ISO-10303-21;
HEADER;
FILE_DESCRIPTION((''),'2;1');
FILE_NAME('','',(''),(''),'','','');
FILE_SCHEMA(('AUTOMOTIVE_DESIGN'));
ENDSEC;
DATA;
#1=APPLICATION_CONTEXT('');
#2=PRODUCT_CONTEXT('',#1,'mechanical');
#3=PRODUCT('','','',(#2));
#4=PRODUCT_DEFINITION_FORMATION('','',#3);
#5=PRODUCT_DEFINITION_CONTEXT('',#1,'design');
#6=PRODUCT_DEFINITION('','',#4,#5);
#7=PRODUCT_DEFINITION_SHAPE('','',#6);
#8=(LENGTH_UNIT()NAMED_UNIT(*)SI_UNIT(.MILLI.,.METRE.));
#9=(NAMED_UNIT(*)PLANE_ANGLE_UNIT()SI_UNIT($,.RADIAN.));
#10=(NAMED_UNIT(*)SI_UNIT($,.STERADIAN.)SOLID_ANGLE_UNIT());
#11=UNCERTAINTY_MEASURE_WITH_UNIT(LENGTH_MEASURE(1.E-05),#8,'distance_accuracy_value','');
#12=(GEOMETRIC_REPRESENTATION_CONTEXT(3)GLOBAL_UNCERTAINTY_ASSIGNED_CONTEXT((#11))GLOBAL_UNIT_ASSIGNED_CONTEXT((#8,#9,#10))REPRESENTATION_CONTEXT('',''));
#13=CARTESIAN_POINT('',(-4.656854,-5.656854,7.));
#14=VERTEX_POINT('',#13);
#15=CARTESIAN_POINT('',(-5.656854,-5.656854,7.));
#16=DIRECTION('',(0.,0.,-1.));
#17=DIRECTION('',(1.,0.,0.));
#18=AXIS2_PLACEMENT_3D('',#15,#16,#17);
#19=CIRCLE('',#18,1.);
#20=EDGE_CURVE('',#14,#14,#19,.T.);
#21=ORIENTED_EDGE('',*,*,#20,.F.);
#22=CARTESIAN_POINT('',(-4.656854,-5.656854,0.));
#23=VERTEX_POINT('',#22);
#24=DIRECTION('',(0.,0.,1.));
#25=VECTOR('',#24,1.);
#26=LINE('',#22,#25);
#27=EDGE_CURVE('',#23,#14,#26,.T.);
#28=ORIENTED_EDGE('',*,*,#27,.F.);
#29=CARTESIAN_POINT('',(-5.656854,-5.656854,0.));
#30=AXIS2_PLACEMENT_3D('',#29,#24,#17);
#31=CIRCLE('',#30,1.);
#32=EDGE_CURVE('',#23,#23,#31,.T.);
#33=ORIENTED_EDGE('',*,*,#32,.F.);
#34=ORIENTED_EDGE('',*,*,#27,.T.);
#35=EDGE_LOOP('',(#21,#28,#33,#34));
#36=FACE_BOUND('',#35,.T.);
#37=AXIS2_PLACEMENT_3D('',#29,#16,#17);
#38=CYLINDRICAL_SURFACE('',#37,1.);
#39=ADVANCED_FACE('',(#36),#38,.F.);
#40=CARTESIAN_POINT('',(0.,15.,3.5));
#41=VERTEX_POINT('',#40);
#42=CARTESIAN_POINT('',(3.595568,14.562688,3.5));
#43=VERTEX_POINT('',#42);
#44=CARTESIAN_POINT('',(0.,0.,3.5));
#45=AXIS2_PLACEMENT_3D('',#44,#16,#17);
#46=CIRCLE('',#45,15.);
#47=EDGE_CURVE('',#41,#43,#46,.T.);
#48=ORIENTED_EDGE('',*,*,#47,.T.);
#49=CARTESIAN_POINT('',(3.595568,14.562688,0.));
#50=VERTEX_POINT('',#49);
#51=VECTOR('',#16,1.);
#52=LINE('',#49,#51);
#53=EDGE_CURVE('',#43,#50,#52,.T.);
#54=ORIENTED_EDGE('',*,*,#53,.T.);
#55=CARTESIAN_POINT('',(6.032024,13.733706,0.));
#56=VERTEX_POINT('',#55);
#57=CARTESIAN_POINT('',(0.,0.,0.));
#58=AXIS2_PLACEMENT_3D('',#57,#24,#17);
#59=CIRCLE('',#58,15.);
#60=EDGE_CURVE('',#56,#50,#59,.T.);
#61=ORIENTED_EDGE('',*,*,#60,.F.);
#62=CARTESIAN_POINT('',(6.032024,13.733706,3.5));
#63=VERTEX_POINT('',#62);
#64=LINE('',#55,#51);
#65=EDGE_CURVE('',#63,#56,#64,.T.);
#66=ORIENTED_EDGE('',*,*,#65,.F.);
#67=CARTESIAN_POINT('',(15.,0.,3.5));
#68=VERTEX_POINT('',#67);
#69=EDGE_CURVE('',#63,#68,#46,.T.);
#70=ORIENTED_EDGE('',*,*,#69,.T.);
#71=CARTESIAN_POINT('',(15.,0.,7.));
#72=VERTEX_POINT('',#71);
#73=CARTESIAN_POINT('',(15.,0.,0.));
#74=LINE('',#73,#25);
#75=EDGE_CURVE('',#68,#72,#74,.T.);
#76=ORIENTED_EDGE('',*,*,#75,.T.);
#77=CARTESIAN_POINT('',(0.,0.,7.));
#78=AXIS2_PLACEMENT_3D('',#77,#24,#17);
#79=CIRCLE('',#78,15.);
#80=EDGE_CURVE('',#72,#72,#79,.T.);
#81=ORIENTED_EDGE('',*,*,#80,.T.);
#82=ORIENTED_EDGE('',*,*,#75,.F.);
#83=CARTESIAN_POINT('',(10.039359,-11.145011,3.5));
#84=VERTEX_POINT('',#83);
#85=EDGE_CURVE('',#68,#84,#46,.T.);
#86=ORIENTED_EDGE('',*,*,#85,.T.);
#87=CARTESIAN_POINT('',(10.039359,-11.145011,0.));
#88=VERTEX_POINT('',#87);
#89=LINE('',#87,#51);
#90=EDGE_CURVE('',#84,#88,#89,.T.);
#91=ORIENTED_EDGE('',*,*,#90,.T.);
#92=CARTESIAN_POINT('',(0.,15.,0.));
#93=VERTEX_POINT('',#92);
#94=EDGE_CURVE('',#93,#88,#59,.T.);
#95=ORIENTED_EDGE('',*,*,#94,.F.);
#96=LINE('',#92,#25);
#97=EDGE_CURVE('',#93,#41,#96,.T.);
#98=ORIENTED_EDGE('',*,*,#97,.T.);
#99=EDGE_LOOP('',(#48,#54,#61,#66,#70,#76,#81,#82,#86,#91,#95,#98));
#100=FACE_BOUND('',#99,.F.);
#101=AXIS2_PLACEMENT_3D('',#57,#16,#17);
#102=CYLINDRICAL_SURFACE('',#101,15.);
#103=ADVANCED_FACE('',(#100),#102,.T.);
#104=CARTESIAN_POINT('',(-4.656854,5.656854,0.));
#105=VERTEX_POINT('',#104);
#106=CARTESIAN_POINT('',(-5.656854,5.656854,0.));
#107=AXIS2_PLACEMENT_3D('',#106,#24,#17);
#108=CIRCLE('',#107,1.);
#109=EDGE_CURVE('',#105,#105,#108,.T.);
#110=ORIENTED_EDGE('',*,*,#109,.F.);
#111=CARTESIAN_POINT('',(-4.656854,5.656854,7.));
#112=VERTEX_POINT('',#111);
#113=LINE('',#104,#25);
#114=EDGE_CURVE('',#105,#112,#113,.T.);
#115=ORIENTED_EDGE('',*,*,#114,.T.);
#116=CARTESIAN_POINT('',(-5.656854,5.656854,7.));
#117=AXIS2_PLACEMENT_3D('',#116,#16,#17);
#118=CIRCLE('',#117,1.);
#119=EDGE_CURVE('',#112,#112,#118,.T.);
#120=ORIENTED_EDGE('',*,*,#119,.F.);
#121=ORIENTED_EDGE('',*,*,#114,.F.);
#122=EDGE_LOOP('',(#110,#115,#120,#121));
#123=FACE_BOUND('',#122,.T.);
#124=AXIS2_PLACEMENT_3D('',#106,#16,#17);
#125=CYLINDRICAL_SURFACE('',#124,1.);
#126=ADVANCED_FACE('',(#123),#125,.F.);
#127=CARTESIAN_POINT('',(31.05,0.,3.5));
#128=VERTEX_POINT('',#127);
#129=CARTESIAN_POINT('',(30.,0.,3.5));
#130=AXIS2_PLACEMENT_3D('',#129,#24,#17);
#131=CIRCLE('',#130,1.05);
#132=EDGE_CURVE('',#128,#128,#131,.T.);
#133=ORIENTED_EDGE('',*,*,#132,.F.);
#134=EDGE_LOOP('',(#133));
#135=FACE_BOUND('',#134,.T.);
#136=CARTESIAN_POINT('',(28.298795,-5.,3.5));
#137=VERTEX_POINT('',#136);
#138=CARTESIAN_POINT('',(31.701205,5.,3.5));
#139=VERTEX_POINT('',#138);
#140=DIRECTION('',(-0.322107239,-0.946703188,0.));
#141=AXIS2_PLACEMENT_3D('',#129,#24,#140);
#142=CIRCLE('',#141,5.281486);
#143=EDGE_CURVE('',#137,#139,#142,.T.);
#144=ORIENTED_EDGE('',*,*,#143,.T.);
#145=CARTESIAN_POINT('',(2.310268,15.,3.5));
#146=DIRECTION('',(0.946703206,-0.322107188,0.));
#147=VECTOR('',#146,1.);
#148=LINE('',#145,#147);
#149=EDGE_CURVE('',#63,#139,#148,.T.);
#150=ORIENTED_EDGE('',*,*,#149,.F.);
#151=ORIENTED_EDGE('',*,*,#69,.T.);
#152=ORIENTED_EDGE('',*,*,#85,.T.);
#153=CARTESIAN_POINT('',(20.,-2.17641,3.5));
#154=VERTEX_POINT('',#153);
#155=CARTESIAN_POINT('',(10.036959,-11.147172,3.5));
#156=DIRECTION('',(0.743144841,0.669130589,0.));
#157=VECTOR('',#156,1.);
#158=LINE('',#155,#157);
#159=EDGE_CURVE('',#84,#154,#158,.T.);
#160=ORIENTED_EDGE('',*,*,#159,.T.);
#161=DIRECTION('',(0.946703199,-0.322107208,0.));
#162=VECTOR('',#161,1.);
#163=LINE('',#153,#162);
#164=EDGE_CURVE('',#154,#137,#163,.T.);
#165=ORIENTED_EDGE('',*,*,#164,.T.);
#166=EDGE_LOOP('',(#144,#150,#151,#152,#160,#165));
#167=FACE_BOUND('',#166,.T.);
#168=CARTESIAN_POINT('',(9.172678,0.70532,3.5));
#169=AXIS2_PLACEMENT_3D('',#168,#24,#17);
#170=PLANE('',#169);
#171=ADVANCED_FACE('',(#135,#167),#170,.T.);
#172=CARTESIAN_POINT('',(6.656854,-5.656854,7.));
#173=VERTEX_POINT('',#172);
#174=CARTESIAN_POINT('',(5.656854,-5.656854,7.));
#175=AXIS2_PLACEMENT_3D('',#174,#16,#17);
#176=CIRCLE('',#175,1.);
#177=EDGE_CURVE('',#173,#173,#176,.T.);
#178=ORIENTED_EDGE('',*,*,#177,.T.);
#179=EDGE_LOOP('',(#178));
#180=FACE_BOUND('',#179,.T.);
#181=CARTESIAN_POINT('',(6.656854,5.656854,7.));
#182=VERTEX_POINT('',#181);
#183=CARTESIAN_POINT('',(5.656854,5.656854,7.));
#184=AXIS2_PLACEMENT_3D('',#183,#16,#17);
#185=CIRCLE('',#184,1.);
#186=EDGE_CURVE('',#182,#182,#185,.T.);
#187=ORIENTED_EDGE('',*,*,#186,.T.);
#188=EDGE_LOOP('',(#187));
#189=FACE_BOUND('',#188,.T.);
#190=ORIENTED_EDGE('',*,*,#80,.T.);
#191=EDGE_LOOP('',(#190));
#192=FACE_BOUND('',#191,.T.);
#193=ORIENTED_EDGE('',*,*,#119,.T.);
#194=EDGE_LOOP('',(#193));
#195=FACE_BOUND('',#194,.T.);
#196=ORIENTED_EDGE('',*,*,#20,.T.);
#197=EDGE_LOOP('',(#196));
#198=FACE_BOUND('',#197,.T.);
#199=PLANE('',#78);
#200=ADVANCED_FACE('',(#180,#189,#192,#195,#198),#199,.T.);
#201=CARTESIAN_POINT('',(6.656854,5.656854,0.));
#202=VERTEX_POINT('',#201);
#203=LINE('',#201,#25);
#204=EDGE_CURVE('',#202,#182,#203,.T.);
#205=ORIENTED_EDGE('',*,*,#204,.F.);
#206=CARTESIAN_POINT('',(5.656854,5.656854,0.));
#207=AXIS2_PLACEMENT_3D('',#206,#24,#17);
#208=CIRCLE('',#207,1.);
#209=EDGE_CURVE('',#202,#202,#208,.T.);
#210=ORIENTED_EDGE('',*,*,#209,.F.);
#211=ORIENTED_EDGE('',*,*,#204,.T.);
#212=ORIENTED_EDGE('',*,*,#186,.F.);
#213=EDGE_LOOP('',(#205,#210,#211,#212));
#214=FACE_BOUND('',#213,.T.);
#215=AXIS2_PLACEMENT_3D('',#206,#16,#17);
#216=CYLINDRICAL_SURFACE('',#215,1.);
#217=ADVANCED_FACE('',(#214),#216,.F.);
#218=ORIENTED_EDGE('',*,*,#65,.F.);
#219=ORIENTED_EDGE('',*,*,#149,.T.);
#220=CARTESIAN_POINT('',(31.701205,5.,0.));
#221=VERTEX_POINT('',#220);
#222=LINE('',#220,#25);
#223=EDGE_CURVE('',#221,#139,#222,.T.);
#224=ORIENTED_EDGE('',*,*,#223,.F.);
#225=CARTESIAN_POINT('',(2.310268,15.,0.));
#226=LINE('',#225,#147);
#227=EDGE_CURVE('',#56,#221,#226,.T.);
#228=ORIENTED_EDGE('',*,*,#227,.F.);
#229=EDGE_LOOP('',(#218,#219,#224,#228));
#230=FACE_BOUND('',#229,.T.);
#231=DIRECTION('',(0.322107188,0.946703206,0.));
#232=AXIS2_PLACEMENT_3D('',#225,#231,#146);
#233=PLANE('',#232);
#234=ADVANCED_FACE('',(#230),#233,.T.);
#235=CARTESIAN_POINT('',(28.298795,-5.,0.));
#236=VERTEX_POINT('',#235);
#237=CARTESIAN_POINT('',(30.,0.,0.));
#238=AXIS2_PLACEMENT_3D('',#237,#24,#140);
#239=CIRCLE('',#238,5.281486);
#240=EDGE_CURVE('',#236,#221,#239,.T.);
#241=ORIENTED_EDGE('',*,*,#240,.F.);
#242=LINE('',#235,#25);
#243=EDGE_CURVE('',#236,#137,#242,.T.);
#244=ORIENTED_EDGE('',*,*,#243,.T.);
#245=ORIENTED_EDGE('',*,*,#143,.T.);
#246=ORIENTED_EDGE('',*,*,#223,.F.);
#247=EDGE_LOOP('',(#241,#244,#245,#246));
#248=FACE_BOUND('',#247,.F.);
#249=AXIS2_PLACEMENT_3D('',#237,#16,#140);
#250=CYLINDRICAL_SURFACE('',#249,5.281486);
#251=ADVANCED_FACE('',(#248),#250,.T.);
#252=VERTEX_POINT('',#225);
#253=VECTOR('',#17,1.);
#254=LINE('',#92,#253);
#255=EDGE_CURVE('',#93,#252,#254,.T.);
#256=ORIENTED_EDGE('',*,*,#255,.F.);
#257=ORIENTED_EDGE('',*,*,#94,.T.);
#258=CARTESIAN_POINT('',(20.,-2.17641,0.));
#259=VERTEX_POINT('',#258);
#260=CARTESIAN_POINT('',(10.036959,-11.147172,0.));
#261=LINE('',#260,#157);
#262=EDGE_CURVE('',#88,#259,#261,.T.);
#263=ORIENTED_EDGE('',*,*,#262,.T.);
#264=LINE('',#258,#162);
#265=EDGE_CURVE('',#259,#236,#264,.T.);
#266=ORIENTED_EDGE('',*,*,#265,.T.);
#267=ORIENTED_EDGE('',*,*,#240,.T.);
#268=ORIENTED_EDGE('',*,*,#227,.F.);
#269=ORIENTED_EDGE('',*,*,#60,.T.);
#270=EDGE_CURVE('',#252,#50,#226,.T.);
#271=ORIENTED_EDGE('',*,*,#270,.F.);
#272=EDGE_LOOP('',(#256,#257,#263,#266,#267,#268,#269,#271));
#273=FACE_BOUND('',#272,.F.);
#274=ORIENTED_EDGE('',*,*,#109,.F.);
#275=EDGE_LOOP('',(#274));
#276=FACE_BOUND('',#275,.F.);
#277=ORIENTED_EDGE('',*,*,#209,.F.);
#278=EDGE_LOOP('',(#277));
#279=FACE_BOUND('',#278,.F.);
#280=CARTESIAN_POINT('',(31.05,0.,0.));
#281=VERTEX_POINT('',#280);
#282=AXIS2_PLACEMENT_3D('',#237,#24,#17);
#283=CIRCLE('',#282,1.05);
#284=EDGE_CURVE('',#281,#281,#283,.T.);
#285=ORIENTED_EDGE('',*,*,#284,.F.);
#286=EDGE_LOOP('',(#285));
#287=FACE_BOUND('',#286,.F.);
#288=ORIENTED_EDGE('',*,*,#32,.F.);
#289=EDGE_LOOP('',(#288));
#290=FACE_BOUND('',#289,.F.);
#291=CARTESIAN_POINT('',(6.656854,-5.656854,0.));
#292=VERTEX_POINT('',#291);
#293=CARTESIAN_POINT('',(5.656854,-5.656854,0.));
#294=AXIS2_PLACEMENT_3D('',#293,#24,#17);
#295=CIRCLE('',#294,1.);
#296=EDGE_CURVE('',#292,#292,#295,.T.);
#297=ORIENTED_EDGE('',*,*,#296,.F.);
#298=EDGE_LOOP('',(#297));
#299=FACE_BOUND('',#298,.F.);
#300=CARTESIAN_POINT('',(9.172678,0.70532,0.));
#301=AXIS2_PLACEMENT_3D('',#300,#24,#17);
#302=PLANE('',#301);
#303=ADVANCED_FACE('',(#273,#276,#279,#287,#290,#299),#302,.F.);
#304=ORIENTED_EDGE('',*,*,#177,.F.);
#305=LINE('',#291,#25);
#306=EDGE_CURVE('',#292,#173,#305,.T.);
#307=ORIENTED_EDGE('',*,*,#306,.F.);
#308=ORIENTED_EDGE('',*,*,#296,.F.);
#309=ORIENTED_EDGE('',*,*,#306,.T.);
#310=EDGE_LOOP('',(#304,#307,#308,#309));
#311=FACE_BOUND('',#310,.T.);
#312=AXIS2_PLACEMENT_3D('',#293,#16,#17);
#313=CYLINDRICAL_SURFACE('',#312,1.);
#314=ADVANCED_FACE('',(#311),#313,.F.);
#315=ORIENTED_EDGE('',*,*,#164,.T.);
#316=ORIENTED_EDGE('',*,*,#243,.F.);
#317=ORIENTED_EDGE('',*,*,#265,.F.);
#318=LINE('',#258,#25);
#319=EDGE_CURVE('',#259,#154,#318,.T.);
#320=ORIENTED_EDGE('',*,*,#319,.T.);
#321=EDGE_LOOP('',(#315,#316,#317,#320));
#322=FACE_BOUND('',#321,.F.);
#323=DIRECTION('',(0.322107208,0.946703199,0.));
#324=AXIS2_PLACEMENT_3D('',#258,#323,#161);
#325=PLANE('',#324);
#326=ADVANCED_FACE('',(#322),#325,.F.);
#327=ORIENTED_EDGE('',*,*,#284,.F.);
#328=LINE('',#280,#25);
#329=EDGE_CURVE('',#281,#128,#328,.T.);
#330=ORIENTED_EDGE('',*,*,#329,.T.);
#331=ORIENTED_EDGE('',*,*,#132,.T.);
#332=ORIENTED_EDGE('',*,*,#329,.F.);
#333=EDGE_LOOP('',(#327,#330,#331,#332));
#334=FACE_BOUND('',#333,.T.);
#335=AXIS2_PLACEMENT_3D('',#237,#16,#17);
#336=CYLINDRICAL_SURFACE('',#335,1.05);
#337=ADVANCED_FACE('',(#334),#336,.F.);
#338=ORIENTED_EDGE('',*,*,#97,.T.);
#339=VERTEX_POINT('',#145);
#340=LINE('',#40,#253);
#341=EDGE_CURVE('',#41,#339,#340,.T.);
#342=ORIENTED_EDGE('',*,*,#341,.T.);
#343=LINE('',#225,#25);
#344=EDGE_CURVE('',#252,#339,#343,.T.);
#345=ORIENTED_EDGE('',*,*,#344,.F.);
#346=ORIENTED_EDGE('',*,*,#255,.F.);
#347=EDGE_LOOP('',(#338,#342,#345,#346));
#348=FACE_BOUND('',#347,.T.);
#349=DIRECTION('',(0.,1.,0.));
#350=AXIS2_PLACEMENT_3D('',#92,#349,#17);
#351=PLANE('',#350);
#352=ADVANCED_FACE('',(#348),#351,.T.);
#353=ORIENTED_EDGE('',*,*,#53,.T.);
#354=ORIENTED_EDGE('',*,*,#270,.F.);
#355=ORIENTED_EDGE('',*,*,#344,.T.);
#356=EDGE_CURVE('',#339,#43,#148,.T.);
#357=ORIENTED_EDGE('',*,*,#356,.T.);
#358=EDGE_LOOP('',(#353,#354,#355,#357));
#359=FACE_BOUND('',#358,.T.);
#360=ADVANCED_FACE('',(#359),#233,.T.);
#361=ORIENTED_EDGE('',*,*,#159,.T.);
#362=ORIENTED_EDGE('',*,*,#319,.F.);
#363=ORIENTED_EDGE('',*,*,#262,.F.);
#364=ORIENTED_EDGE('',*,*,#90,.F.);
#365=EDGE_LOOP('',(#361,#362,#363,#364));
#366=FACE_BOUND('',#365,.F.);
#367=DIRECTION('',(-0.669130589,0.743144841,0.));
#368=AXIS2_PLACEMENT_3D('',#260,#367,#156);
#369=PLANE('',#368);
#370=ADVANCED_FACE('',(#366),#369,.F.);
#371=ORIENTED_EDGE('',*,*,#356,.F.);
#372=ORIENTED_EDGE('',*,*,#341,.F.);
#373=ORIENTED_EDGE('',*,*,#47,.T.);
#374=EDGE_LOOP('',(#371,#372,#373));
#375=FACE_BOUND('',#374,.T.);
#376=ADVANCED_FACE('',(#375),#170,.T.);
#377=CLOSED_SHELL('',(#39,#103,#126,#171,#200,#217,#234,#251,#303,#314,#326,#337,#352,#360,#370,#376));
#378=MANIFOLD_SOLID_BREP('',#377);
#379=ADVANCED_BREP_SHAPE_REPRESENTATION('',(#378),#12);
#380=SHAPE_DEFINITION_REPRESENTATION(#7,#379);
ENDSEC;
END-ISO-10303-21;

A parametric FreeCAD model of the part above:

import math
import FreeCAD as App
import Part
import Sketcher
from FreeCAD import Vector
Q = App.Units.Quantity

doc = App.newDocument("Part")
body = doc.addObject("PartDesign::Body", "Body")

# Sketch on XY plane
sketch1 = body.newObject("Sketcher::SketchObject", "Sketch")
sketch1.AttachmentSupport = (doc.getObject("XY_Plane"), [""])
sketch1.MapMode = "FlatFace"
sketch1.addGeometry([
    Part.ArcOfCircle(Part.Circle(Vector(0, 0, 0), Vector(0, 0, 1), 15), math.radians(90), math.radians(312)),  # 0
    Part.LineSegment(Vector(10, -11.1, 0), Vector(20, -2.2, 0)),  # 1
    Part.LineSegment(Vector(20, -2.2, 0), Vector(28.3, -5, 0)),  # 2
    Part.ArcOfCircle(Part.Circle(Vector(30, 0, 0), Vector(0, 0, 1), 5.3), math.radians(-109), math.radians(71)),  # 3
    Part.LineSegment(Vector(31.7, 5, 0), Vector(2.3, 15, 0)),  # 4
    Part.LineSegment(Vector(2.3, 15, 0), Vector(0, 15, 0)),  # 5
    Part.Circle(Vector(30, 0, 0), Vector(0, 0, 1), 1.1),  # 6
], False)
sketch1.addConstraint([
    Sketcher.Constraint("Tangent", 0, 2, 1, 1),
    Sketcher.Constraint("Coincident", 1, 2, 2, 1),
    Sketcher.Constraint("Tangent", 2, 2, 3, 1),
    Sketcher.Constraint("Tangent", 3, 2, 4, 1),
    Sketcher.Constraint("Coincident", 4, 2, 5, 1),
    Sketcher.Constraint("Tangent", 5, 2, 0, 1),
    Sketcher.Constraint("Horizontal", 5),
    Sketcher.Constraint("Coincident", 0, 3, -1, 1),
    Sketcher.Constraint("Coincident", 6, 3, 3, 3),
    Sketcher.Constraint("PointOnObject", 3, 3, -1),
    Sketcher.Constraint("Parallel", 2, 4),
    Sketcher.Constraint("Radius", 0, 15.0),
    Sketcher.Constraint("Diameter", 6, 2.1),
    Sketcher.Constraint("Angle", 1, Q("41.999999 deg")),
    Sketcher.Constraint("DistanceX", -1, 1, 3, 3, 30.0),
    Sketcher.Constraint("DistanceX", -1, 1, 1, 2, 20.0),
    Sketcher.Constraint("DistanceY", 2, 2, -1, 1, 5.0),
])
pad1 = body.newObject("PartDesign::Pad", "Pad")
pad1.Profile = sketch1
pad1.Length = 3.5

# Sketch on XY plane
sketch2 = body.newObject("Sketcher::SketchObject", "Sketch001")
sketch2.AttachmentSupport = (doc.getObject("XY_Plane"), [""])
sketch2.MapMode = "FlatFace"
sketch2.addGeometry(Part.Circle(Vector(0, 0, 0), Vector(0, 0, 1), 15), False)
sketch2.addConstraint([
    Sketcher.Constraint("Coincident", 0, 3, -1, 1),
    Sketcher.Constraint("Diameter", 0, 30.0),
])
pad2 = body.newObject("PartDesign::Pad", "Pad001")
pad2.Profile = sketch2
pad2.Length = 7

# Sketch on XY plane
sketch3 = body.newObject("Sketcher::SketchObject", "Sketch002")
sketch3.AttachmentSupport = (doc.getObject("XY_Plane"), [""])
sketch3.MapMode = "FlatFace"
sketch3.addGeometry([
    Part.Circle(Vector(-5.7, 5.7, 0), Vector(0, 0, 1), 1),
    Part.Circle(Vector(5.7, 5.7, 0), Vector(0, 0, 1), 1),
    Part.Circle(Vector(5.7, -5.7, 0), Vector(0, 0, 1), 1),
    Part.Circle(Vector(-5.7, -5.7, 0), Vector(0, 0, 1), 1),
], False)
sketch3.addConstraint([
    Sketcher.Constraint("Equal", 0, 1),
    Sketcher.Constraint("Equal", 1, 2),
    Sketcher.Constraint("Equal", 2, 3),
    Sketcher.Constraint("Symmetric", 0, 3, 2, 3, -1, 1),
    Sketcher.Constraint("Symmetric", 1, 3, 3, 3, -1, 1),
    Sketcher.Constraint("Symmetric", 0, 3, 1, 3, -2),
    Sketcher.Constraint("Diameter", 0, 2.0),
    Sketcher.Constraint("DistanceX", 0, 3, -1, 1, 5.656854),
    Sketcher.Constraint("DistanceY", -1, 1, 0, 3, 5.656854),
])
pocket1 = body.newObject("PartDesign::Pocket", "Pocket")
pocket1.Profile = sketch3
pocket1.Length = 10
pocket1.Reversed = True

doc.recompute()
